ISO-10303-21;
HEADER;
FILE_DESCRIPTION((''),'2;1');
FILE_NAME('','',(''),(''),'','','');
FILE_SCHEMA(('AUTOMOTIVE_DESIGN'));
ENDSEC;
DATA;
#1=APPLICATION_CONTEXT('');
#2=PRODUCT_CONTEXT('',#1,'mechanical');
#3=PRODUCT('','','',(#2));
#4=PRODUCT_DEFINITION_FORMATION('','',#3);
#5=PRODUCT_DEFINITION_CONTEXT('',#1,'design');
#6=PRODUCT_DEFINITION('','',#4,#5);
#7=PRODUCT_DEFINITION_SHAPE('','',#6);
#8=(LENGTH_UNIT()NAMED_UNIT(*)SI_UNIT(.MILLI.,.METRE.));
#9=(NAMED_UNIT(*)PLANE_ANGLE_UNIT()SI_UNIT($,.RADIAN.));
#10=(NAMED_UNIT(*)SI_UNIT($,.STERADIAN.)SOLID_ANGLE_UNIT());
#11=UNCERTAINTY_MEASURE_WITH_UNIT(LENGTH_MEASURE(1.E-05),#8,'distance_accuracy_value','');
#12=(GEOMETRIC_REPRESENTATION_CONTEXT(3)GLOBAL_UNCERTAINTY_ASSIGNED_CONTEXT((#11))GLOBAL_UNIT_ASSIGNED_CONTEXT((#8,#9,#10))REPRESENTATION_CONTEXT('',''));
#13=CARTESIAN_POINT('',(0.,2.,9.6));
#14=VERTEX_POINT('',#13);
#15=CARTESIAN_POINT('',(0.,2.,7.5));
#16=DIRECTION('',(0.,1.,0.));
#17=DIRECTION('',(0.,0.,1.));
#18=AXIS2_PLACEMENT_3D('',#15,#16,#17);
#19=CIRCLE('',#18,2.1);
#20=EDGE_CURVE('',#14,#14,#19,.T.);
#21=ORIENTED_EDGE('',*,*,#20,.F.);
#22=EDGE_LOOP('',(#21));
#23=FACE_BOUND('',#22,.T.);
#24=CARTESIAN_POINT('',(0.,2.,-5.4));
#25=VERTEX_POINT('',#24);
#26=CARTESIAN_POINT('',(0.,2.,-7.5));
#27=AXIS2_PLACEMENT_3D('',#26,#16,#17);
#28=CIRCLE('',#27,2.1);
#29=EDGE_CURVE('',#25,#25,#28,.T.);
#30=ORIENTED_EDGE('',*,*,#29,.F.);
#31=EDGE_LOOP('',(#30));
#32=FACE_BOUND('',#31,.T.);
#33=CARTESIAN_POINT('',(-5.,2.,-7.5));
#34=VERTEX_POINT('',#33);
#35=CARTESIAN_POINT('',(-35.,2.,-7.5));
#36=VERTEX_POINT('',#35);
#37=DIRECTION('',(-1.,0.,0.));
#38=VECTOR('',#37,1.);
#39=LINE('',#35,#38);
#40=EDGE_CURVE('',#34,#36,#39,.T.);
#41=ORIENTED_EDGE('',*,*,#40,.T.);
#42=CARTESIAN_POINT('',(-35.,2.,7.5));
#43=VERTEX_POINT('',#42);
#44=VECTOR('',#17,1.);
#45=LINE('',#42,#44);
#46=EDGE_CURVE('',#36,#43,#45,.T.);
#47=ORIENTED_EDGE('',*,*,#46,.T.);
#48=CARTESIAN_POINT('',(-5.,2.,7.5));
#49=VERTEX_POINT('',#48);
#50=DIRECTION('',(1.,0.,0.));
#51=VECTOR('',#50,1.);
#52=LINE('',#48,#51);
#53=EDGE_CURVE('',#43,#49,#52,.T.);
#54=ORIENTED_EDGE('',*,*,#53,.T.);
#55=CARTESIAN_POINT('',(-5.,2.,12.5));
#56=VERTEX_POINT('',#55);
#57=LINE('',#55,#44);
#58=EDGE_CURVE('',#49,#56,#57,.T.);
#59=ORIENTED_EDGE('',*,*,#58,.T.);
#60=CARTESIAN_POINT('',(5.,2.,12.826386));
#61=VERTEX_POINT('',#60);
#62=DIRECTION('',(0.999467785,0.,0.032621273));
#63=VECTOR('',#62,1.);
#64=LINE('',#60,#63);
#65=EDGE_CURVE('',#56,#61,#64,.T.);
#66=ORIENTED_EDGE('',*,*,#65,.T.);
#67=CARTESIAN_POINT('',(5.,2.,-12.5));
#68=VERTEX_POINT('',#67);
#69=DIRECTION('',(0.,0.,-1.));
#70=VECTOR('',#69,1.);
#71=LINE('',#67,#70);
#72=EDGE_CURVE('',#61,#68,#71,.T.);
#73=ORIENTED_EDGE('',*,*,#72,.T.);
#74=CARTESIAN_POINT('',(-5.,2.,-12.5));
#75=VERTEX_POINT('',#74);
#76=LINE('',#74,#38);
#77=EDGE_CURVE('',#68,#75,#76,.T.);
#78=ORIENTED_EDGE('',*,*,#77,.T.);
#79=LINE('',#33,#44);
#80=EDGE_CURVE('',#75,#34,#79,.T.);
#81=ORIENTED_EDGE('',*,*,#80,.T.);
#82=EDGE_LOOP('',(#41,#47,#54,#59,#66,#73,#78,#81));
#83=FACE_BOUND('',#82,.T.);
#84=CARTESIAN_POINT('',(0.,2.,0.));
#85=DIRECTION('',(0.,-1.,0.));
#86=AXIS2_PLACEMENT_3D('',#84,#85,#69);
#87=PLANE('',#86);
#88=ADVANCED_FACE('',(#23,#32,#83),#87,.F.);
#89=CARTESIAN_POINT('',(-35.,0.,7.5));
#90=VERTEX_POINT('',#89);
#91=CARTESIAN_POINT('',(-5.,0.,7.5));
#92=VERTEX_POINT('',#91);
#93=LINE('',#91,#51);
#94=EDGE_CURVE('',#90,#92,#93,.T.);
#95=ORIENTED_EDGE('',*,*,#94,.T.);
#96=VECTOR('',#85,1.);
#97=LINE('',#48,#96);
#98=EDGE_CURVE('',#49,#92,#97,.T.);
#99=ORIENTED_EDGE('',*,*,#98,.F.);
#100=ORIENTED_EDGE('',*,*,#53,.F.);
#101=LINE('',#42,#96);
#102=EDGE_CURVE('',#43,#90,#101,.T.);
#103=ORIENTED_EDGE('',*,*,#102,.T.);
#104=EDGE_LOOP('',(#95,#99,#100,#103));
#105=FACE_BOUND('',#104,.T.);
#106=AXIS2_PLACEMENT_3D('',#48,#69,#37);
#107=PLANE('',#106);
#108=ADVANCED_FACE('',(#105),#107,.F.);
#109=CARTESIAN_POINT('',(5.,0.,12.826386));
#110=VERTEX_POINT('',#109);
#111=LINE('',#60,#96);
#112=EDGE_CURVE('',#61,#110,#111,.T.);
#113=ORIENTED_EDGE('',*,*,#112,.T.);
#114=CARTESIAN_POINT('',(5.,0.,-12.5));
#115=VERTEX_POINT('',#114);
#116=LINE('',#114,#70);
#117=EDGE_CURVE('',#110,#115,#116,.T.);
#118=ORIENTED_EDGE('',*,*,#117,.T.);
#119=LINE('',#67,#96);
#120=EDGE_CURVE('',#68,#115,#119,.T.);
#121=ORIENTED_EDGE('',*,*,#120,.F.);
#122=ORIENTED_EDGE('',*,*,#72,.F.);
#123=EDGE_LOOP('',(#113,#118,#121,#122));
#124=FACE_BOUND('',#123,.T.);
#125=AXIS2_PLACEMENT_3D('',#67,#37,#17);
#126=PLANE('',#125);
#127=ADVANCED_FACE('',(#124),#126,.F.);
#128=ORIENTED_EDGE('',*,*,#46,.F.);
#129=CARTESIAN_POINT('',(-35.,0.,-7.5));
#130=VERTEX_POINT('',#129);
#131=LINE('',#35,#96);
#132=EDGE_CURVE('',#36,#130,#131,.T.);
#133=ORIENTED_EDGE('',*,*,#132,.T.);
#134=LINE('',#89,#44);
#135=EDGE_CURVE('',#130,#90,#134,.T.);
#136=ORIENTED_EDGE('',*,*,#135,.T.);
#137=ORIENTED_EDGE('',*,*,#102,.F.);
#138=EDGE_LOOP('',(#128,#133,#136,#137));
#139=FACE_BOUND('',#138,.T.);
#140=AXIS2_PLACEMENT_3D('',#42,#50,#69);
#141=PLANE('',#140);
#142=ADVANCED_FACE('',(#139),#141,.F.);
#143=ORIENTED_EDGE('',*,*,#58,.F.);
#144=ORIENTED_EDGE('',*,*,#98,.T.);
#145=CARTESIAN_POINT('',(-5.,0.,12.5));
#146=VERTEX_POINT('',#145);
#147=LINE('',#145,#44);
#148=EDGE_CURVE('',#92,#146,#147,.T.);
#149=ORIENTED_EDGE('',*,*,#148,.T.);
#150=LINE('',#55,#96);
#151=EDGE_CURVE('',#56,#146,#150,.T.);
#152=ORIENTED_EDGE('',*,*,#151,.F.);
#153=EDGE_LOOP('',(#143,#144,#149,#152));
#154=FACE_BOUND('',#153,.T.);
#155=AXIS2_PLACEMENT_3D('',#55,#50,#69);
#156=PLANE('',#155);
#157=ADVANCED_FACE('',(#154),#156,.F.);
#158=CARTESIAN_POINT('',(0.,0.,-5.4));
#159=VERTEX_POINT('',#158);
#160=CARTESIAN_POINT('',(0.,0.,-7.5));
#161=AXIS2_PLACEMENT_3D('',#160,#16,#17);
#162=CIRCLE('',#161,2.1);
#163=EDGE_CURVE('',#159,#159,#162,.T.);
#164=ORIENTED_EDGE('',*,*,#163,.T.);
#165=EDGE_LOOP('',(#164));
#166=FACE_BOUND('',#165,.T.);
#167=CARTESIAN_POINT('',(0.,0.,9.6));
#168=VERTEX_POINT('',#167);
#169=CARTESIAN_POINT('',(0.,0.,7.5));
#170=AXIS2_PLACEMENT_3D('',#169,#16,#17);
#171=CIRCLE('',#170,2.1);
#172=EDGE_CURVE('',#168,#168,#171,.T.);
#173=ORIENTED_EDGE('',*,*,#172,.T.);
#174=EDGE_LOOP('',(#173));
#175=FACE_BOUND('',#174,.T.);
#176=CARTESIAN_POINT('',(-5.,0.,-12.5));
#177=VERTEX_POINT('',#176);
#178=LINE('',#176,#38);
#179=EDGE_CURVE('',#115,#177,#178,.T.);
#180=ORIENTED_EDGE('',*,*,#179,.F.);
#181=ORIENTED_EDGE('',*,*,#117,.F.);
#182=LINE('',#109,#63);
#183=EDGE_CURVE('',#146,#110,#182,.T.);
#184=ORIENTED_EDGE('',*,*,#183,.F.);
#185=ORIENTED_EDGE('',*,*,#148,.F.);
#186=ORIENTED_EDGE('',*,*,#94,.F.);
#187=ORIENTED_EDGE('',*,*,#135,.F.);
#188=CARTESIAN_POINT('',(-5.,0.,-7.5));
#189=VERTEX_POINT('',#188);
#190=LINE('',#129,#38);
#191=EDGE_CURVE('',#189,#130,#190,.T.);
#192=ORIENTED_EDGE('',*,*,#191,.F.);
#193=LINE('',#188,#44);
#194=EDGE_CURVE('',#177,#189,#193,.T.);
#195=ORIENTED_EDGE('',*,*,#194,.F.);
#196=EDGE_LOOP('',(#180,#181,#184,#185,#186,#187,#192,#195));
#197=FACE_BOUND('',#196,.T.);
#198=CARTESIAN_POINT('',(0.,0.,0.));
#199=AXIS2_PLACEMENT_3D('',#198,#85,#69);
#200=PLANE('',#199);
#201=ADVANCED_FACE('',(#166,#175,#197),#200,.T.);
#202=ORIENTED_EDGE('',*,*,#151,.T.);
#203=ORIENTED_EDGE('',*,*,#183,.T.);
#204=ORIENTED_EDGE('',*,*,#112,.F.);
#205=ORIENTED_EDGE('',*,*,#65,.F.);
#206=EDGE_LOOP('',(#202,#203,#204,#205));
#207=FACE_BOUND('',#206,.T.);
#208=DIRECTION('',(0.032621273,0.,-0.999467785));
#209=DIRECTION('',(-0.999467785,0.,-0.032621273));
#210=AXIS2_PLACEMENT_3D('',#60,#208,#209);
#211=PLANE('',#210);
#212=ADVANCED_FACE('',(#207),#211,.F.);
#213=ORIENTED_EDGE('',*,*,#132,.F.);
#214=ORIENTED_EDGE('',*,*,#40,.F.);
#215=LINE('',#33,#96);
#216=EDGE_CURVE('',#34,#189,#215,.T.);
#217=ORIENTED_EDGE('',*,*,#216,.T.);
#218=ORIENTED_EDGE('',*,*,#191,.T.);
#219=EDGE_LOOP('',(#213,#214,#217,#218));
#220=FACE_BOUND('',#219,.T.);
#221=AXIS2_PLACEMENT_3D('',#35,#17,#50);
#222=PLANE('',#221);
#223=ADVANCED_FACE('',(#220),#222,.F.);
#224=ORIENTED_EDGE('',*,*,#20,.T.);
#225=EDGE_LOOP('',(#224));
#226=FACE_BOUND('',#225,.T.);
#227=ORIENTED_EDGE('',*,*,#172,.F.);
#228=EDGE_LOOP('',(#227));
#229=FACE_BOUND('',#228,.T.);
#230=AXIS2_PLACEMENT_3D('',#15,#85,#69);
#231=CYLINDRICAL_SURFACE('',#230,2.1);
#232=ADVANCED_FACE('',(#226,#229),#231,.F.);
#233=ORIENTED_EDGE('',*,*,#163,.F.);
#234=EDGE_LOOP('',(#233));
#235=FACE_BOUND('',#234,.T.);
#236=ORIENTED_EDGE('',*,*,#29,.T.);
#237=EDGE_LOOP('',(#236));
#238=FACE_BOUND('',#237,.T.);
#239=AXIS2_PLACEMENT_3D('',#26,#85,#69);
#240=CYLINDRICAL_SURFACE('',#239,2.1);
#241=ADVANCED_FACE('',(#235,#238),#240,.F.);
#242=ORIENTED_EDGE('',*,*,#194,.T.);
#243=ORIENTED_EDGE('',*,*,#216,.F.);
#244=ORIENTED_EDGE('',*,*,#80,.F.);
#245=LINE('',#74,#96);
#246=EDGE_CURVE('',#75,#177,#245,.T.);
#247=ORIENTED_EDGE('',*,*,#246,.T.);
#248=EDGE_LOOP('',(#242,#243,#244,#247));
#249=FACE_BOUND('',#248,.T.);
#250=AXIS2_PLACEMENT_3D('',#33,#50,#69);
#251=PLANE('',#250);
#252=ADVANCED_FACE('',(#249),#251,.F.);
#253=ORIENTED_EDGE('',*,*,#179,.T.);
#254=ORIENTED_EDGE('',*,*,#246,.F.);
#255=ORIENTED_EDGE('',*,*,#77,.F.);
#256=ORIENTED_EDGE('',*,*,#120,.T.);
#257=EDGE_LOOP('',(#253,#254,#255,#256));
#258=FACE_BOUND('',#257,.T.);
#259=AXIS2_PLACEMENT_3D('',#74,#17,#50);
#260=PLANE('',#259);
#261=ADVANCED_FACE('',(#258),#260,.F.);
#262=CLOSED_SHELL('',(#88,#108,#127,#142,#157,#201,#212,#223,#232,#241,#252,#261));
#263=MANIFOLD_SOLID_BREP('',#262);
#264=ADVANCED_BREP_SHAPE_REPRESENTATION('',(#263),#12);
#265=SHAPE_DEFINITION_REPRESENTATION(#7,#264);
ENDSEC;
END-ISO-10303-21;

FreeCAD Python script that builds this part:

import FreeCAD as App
import Part
import Sketcher
from FreeCAD import Vector

doc = App.newDocument("Part")
body = doc.addObject("PartDesign::Body", "Body")

sketch1 = body.newObject("Sketcher::SketchObject", "Sketch")
sketch1.AttachmentSupport = (doc.getObject("XZ_Plane"), [""])
sketch1.MapMode = "FlatFace"
sketch1.addGeometry(Part.LineSegment(Vector(5, -12.5, 0), Vector(-5, -12.5, 0)), False)
sketch1.addGeometry(Part.LineSegment(Vector(-5, -12.5, 0), Vector(-5, -7.5, 0)), False)
sketch1.addGeometry(Part.LineSegment(Vector(-5, -7.5, 0), Vector(-35, -7.5, 0)), False)
sketch1.addGeometry(Part.LineSegment(Vector(-35, -7.5, 0), Vector(-35, 7.5, 0)), False)
sketch1.addGeometry(Part.LineSegment(Vector(-35, 7.5, 0), Vector(-5, 7.5, 0)), False)
sketch1.addGeometry(Part.LineSegment(Vector(-5, 7.5, 0), Vector(-5, 12.5, 0)), False)
sketch1.addGeometry(Part.LineSegment(Vector(-5, 12.5, 0), Vector(5, 12.826386, 0)), False)
sketch1.addGeometry(Part.LineSegment(Vector(5, 12.826386, 0), Vector(5, -12.5, 0)), False)
sketch1.addGeometry(Part.Circle(Vector(0, 7.5, 0), Vector(0, 0, 1), 2.1), False)
sketch1.addGeometry(Part.Circle(Vector(0, -7.5, 0), Vector(0, 0, 1), 2.1), False)
sketch1.addConstraint(Sketcher.Constraint("Coincident", 0, 2, 1, 1))
sketch1.addConstraint(Sketcher.Constraint("Coincident", 1, 2, 2, 1))
sketch1.addConstraint(Sketcher.Constraint("Coincident", 2, 2, 3, 1))
sketch1.addConstraint(Sketcher.Constraint("Coincident", 3, 2, 4, 1))
sketch1.addConstraint(Sketcher.Constraint("Coincident", 4, 2, 5, 1))
sketch1.addConstraint(Sketcher.Constraint("Coincident", 5, 2, 6, 1))
sketch1.addConstraint(Sketcher.Constraint("Coincident", 6, 2, 7, 1))
sketch1.addConstraint(Sketcher.Constraint("Coincident", 7, 2, 0, 1))
sketch1.addConstraint(Sketcher.Constraint("Horizontal", 0))
sketch1.addConstraint(Sketcher.Constraint("Vertical", 1))
sketch1.addConstraint(Sketcher.Constraint("Horizontal", 2))
sketch1.addConstraint(Sketcher.Constraint("Vertical", 3))
sketch1.addConstraint(Sketcher.Constraint("Horizontal", 4))
sketch1.addConstraint(Sketcher.Constraint("Vertical", 5))
sketch1.addConstraint(Sketcher.Constraint("Vertical", 7))
sketch1.addConstraint(Sketcher.Constraint("Equal", 8, 9))
sketch1.addConstraint(Sketcher.Constraint("Symmetric", 8, 3, 9, 3, -1, 1))
sketch1.addConstraint(Sketcher.Constraint("Symmetric", 5, 2, 7, 2, -1, 1))
sketch1.addConstraint(Sketcher.Constraint("Symmetric", 1, 2, 4, 2, -1))
sketch1.addConstraint(Sketcher.Constraint("PointOnObject", 8, 3, -2))
sketch1.addConstraint(Sketcher.Constraint("Horizontal", 9, 3, 1, 2))
sketch1.addConstraint(Sketcher.Constraint("Diameter", 8, 4.2))
sketch1.addConstraint(Sketcher.Constraint("DistanceX", 0, 2, 0, 1, 10.0))
sketch1.addConstraint(Sketcher.Constraint("DistanceX", 2, 2, 2, 1, 30.0))
sketch1.addConstraint(Sketcher.Constraint("DistanceY", 1, 1, 1, 2, 5.0))
sketch1.addConstraint(Sketcher.Constraint("DistanceY", 3, 1, 3, 2, 15.0))
sketch1.addConstraint(Sketcher.Constraint("DistanceY", 7, 2, 7, 1, 25.326386))
pad1 = body.newObject("PartDesign::Pad", "Pad")
pad1.Profile = sketch1
pad1.Length = 2
pad1.Reversed = True

doc.recompute()
